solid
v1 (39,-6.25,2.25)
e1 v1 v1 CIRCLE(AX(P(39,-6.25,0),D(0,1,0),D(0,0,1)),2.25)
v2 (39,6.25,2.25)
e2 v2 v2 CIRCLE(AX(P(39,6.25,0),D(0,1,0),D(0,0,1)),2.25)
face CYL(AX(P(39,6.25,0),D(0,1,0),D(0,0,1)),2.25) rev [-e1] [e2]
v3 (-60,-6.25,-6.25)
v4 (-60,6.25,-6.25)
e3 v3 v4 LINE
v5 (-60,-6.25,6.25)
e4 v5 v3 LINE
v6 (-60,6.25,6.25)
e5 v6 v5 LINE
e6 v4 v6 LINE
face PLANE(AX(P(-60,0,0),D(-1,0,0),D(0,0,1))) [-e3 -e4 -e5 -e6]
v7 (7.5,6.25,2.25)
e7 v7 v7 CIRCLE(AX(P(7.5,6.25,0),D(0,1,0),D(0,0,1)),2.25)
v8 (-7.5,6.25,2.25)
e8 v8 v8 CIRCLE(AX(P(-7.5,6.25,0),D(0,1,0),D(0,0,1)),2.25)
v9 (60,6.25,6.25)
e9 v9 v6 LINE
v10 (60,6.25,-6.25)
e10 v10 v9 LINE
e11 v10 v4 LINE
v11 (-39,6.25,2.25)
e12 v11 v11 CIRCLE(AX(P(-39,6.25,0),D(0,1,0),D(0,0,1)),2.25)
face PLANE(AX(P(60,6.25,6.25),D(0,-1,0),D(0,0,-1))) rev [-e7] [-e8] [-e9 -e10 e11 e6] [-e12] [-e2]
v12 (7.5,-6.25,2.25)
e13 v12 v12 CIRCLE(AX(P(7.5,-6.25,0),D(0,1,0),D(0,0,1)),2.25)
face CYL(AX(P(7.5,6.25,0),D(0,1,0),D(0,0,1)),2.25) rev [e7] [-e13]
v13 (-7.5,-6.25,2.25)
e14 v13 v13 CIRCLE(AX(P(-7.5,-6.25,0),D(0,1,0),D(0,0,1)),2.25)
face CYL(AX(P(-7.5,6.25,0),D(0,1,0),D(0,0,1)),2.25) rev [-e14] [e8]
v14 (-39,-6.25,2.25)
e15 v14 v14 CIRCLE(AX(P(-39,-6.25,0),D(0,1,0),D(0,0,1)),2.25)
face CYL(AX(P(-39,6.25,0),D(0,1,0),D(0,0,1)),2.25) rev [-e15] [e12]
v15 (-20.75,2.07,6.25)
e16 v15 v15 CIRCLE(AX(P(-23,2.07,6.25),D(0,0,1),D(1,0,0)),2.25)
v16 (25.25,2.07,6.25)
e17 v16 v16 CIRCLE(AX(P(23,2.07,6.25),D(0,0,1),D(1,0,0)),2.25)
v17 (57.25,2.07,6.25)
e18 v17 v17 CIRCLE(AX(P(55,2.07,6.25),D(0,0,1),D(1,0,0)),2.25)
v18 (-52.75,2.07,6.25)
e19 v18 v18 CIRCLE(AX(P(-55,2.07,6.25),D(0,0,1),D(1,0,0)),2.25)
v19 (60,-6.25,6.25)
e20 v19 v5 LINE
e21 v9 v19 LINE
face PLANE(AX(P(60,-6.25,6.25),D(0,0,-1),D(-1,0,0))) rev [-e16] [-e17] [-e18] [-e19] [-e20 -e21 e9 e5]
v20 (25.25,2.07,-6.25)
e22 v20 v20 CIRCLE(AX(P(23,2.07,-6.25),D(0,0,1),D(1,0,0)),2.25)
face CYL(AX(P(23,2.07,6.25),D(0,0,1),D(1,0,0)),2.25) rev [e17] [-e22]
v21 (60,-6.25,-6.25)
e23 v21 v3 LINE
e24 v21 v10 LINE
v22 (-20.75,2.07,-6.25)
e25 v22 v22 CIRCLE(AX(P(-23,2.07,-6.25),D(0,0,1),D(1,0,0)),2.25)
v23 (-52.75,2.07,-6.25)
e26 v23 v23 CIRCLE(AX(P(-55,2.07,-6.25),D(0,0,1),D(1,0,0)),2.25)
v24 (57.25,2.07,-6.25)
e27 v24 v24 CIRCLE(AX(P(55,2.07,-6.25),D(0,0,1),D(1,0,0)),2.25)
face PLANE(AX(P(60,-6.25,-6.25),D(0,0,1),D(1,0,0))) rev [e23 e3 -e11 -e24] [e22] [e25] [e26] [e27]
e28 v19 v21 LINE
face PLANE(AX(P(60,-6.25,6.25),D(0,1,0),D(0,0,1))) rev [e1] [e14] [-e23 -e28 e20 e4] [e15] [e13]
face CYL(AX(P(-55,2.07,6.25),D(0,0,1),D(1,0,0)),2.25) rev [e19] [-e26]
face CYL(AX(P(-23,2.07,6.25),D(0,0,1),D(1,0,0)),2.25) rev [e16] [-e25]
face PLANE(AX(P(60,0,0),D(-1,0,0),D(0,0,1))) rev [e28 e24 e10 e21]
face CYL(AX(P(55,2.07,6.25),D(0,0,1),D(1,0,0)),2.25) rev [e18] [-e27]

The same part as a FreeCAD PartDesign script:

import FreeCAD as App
import Part
import Sketcher

doc = App.newDocument("Part")
body = doc.addObject("PartDesign::Body", "Body")

sketch1 = doc.addObject("Sketcher::SketchObject", "Sketch")
body.addObject(sketch1)
sketch1.AttachmentSupport = (doc.YZ_Plane, [""])
sketch1.MapMode = "FlatFace"
sketch1.addGeometry([
    Part.LineSegment(App.Vector(6.25, 6.25, 0), App.Vector(-6.25, 6.25, 0)),
    Part.LineSegment(App.Vector(-6.25, 6.25, 0), App.Vector(-6.25, -6.25, 0)),
    Part.LineSegment(App.Vector(-6.25, -6.25, 0), App.Vector(6.25, -6.25, 0)),
    Part.LineSegment(App.Vector(6.25, -6.25, 0), App.Vector(6.25, 6.25, 0)),
], False)
sketch1.addConstraint([
    Sketcher.Constraint("Coincident", 0, 2, 1, 1),
    Sketcher.Constraint("Coincident", 1, 2, 2, 1),
    Sketcher.Constraint("Coincident", 2, 2, 3, 1),
    Sketcher.Constraint("Coincident", 3, 2, 0, 1),
    Sketcher.Constraint("Horizontal", 0),
    Sketcher.Constraint("Vertical", 1),
    Sketcher.Constraint("Horizontal", 2),
    Sketcher.Constraint("Vertical", 3),
    Sketcher.Constraint("Symmetric", 0, 2, 2, 2, -1, 1),
    Sketcher.Constraint("Equal", 2, 1),
    Sketcher.Constraint("DistanceX", 0, 2, 0, 1, 12.5),
])
pad1 = doc.addObject("PartDesign::Pad", "Pad")
body.addObject(pad1)
pad1.Profile = sketch1
pad1.Length = 120
pad1.Midplane = True

sketch2 = doc.addObject("Sketcher::SketchObject", "Sketch001")
body.addObject(sketch2)
sketch2.AttachmentSupport = (doc.XY_Plane, [""])
sketch2.MapMode = "FlatFace"
sketch2.AttachmentOffset = App.Placement(App.Vector(0, 0, 6.25), App.Rotation())
sketch2.addGeometry([
    Part.Circle(App.Vector(-55, 2.07, 0), App.Vector(0, 0, 1), 2.25),
    Part.Circle(App.Vector(-23, 2.07, 0), App.Vector(0, 0, 1), 2.25),
    Part.Circle(App.Vector(23, 2.07, 0), App.Vector(0, 0, 1), 2.25),
    Part.Circle(App.Vector(55, 2.07, 0), App.Vector(0, 0, 1), 2.25),
], False)
sketch2.addConstraint([
    Sketcher.Constraint("Equal", 0, 1),
    Sketcher.Constraint("Equal", 1, 2),
    Sketcher.Constraint("Equal", 2, 3),
    Sketcher.Constraint("Symmetric", 1, 3, 2, 3, -2),
    Sketcher.Constraint("Symmetric", 0, 3, 3, 3, -2),
    Sketcher.Constraint("Horizontal", 0, 3, 1, 3),
    Sketcher.Constraint("Diameter", 0, 4.5),
    Sketcher.Constraint("DistanceX", 0, 3, -1, 1, 55.0),
    Sketcher.Constraint("DistanceX", 1, 3, -1, 1, 23.0),
    Sketcher.Constraint("DistanceY", -1, 1, 0, 3, 2.07),
])
doc.recompute()
hole = doc.addObject("PartDesign::Hole", "Hole")
body.addObject(hole)
hole.Profile = sketch2
hole.ThreadType = "None"
hole.Diameter = 4.5
hole.DepthType = "ThroughAll"

sketch3 = doc.addObject("Sketcher::SketchObject", "Sketch002")
body.addObject(sketch3)
sketch3.AttachmentSupport = (doc.XZ_Plane, [""])
sketch3.MapMode = "FlatFace"
sketch3.AttachmentOffset = App.Placement(App.Vector(0, 0, -6.25), App.Rotation())
sketch3.addGeometry([
    Part.Circle(App.Vector(-39, 0, 0), App.Vector(0, 0, 1), 2.25),
    Part.Circle(App.Vector(39, 0, 0), App.Vector(0, 0, 1), 2.25),
    Part.Circle(App.Vector(-7.5, 0, 0), App.Vector(0, 0, 1), 2.25),
    Part.Circle(App.Vector(7.5, 0, 0), App.Vector(0, 0, 1), 2.25),
], False)
sketch3.addConstraint([
    Sketcher.Constraint("Equal", 0, 1),
    Sketcher.Constraint("Equal", 1, 2),
    Sketcher.Constraint("Equal", 2, 3),
    Sketcher.Constraint("Symmetric", 0, 3, 1, 3, -1, 1),
    Sketcher.Constraint("Symmetric", 2, 3, 3, 3, -1, 1),
    Sketcher.Constraint("PointOnObject", 0, 3, -1),
    Sketcher.Constraint("PointOnObject", 2, 3, -1),
    Sketcher.Constraint("Diameter", 0, 4.5),
    Sketcher.Constraint("DistanceX", 0, 3, -1, 1, 39.0),
    Sketcher.Constraint("DistanceX", 2, 3, 3, 3, 15.0),
])
doc.recompute()
hole2 = doc.addObject("PartDesign::Hole", "Hole001")
body.addObject(hole2)
hole2.Profile = sketch3
hole2.ThreadType = "None"
hole2.Diameter = 4.5
hole2.DepthType = "ThroughAll"
hole2.Reversed = True

doc.recompute()
